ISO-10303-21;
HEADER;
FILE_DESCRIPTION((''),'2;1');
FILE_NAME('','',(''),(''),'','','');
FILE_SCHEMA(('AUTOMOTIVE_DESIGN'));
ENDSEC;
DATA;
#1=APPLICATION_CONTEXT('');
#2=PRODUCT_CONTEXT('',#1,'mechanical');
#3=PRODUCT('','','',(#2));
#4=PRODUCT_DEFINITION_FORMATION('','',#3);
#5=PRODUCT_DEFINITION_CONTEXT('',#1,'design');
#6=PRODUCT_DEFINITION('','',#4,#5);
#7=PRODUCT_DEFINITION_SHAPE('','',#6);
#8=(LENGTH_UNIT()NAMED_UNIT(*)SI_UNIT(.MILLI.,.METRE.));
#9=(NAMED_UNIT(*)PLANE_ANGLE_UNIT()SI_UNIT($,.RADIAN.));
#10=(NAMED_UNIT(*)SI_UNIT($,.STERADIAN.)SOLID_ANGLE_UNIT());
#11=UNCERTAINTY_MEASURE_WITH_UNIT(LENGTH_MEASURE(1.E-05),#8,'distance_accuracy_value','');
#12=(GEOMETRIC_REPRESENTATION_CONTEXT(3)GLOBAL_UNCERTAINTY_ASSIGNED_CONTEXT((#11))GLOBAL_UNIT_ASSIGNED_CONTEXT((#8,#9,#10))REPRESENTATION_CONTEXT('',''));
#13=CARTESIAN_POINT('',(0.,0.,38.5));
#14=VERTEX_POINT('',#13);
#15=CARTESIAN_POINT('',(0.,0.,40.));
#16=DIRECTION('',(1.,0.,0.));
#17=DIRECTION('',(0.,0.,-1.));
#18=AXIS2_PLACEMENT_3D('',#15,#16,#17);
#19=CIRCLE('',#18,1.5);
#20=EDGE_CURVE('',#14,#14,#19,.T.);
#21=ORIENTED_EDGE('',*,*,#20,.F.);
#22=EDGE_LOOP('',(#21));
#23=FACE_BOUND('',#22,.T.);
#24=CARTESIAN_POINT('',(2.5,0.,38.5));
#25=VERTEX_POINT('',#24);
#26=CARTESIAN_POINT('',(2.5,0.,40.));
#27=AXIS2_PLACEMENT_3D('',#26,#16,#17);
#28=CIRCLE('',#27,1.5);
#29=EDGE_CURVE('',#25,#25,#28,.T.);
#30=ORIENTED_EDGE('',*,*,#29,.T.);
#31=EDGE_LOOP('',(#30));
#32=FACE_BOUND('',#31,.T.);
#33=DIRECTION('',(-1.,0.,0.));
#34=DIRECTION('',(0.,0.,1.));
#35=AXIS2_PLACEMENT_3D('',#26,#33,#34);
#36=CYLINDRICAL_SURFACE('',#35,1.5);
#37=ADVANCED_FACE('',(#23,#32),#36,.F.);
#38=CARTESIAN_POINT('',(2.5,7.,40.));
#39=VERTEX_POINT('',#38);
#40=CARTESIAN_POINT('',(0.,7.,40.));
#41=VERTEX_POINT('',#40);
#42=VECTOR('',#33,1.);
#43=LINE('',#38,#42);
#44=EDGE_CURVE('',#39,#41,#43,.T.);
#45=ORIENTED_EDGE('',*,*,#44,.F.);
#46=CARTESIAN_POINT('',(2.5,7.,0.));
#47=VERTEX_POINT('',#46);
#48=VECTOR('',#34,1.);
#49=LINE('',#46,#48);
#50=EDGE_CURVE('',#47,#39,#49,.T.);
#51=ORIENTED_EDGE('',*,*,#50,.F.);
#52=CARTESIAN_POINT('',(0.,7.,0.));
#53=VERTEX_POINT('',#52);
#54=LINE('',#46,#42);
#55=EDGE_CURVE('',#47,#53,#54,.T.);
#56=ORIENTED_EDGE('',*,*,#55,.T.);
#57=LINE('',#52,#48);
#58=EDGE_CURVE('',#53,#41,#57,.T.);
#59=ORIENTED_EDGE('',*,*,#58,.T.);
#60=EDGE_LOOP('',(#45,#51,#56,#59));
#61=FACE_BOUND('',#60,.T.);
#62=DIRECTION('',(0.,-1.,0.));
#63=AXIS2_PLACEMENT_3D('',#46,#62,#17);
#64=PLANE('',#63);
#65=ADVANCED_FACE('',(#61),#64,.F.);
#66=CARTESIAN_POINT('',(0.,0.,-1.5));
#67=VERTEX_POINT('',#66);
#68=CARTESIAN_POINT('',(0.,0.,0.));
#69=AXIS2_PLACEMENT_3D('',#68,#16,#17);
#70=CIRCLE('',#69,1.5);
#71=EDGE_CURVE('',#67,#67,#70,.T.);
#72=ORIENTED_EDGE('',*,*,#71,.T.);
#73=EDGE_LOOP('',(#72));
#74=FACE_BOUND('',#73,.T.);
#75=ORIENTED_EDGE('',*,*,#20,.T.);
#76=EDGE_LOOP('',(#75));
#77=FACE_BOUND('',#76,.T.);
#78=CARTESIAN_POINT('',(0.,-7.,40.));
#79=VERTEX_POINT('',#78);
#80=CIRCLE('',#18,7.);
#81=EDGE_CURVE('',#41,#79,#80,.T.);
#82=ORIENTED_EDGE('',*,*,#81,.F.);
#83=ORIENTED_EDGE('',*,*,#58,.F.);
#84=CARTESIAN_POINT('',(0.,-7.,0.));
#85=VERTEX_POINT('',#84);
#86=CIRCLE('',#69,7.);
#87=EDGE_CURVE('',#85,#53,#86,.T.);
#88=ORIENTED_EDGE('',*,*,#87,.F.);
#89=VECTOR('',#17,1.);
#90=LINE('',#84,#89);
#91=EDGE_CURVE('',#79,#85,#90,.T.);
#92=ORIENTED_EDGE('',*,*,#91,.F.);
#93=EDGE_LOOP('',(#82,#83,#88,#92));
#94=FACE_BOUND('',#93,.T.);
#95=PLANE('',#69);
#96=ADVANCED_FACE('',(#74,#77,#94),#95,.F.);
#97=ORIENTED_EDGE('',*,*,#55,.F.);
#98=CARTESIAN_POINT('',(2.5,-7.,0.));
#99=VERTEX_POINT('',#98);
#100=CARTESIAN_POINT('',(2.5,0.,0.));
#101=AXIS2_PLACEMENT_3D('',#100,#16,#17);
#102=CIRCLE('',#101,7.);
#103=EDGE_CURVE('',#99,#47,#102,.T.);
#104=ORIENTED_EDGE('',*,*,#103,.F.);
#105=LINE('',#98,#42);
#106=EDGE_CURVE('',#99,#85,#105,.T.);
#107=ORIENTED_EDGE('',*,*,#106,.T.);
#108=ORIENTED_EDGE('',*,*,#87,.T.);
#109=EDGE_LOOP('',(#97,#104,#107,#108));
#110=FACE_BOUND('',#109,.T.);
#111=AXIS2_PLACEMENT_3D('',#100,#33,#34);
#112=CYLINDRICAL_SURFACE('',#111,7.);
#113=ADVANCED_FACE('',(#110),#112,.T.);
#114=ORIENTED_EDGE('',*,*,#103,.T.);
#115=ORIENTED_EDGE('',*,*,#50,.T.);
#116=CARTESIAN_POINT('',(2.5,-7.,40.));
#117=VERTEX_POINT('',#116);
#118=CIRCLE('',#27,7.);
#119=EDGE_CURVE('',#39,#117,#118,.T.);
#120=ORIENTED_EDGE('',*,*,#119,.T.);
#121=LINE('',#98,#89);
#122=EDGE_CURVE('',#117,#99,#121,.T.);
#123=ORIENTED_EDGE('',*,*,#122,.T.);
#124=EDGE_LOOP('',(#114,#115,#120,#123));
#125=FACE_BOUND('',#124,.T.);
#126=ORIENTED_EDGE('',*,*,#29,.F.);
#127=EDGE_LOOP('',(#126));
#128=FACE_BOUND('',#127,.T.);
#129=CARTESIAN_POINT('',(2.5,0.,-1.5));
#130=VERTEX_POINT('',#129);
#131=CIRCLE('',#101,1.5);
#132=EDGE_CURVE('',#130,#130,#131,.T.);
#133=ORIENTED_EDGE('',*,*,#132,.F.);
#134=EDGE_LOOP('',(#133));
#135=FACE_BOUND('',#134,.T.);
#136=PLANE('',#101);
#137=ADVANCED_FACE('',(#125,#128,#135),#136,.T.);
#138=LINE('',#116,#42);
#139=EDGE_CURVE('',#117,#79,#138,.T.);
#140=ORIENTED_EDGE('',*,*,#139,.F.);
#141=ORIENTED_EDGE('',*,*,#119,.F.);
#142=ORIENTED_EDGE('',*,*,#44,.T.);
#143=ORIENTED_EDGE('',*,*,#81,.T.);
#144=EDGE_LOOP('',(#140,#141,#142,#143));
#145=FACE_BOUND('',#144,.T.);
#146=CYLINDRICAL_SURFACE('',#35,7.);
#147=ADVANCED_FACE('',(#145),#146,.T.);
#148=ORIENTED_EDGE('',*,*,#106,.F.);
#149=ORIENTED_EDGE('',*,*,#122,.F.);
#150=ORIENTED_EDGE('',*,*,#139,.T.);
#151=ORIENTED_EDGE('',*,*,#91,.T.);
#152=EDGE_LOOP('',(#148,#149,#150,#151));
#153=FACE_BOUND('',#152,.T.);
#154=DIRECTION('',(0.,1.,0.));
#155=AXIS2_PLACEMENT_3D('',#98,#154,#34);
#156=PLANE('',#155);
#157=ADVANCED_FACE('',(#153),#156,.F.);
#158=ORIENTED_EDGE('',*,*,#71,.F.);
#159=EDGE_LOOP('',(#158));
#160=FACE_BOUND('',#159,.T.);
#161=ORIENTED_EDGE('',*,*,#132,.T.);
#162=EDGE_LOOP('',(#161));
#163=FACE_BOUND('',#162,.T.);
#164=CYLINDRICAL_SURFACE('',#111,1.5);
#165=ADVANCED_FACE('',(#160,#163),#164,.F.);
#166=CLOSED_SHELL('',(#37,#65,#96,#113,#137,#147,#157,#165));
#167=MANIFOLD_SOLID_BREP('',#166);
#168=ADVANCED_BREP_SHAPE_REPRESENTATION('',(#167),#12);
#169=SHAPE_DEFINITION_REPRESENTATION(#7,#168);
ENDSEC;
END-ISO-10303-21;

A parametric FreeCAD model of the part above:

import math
import FreeCAD as App
import Part
import Sketcher

V = App.Vector

doc = App.newDocument("Part")
params = doc.addObject("Spreadsheet::Sheet", "Params")
for row, (alias, value) in enumerate([
    ("sketch1_diameter", "3 mm"),
    ("sketch1_radius", "7 mm"),
    ("sketch1_height", "40 mm"),
    ("pad1_length", "2.5 mm"),
], start=1):
    params.set(f"A{row}", alias)
    params.set(f"B{row}", "=" + value)
    params.setAlias(f"B{row}", alias)

body = doc.addObject("PartDesign::Body", "Body")

sketch1 = body.newObject("Sketcher::SketchObject", "Sketch")
sketch1.AttachmentSupport = (doc.getObject("YZ_Plane"), [""])
sketch1.MapMode = "FlatFace"
sketch1.addGeometry(Part.LineSegment(V(-7, 40, 0), V(-7, 0, 0)), False)
sketch1.addGeometry(Part.ArcOfCircle(Part.Circle(V(0, 0, 0), V(0, 0, 1), 7), math.radians(180), math.radians(360)), False)
sketch1.addGeometry(Part.LineSegment(V(7, 0, 0), V(7, 40, 0)), False)
sketch1.addGeometry(Part.ArcOfCircle(Part.Circle(V(0, 40, 0), V(0, 0, 1), 7), math.radians(0), math.radians(180)), False)
sketch1.addGeometry(Part.Circle(V(0, 0, 0), V(0, 0, 1), 1.5), False)
sketch1.addGeometry(Part.Circle(V(0, 40, 0), V(0, 0, 1), 1.5), False)
sketch1.addConstraint(Sketcher.Constraint("Tangent", 0, 2, 1, 1))
sketch1.addConstraint(Sketcher.Constraint("Tangent", 1, 2, 2, 1))
sketch1.addConstraint(Sketcher.Constraint("Tangent", 2, 2, 3, 1))
sketch1.addConstraint(Sketcher.Constraint("Tangent", 3, 2, 0, 1))
sketch1.addConstraint(Sketcher.Constraint("Vertical", 0))
sketch1.addConstraint(Sketcher.Constraint("Vertical", 2))
sketch1.addConstraint(Sketcher.Constraint("Coincident", 1, 3, -1, 1))
sketch1.addConstraint(Sketcher.Constraint("Coincident", 4, 3, -1, 1))
sketch1.addConstraint(Sketcher.Constraint("Coincident", 5, 3, 3, 3))
sketch1.addConstraint(Sketcher.Constraint("Equal", 4, 5))
sketch1.addConstraint(Sketcher.Constraint("Diameter", 4, 3.0))
sketch1.addConstraint(Sketcher.Constraint("Radius", 1, 7.0))
sketch1.addConstraint(Sketcher.Constraint("DistanceY", 0, 2, 0, 1, 40.0))
sketch1.setExpression("Constraints[10]", "Params.sketch1_diameter")
sketch1.setExpression("Constraints[11]", "Params.sketch1_radius")
sketch1.setExpression("Constraints[12]", "Params.sketch1_height")
pad1 = body.newObject("PartDesign::Pad", "Pad")
pad1.Profile = sketch1
pad1.setExpression("Length", "Params.pad1_length")

doc.recompute()
